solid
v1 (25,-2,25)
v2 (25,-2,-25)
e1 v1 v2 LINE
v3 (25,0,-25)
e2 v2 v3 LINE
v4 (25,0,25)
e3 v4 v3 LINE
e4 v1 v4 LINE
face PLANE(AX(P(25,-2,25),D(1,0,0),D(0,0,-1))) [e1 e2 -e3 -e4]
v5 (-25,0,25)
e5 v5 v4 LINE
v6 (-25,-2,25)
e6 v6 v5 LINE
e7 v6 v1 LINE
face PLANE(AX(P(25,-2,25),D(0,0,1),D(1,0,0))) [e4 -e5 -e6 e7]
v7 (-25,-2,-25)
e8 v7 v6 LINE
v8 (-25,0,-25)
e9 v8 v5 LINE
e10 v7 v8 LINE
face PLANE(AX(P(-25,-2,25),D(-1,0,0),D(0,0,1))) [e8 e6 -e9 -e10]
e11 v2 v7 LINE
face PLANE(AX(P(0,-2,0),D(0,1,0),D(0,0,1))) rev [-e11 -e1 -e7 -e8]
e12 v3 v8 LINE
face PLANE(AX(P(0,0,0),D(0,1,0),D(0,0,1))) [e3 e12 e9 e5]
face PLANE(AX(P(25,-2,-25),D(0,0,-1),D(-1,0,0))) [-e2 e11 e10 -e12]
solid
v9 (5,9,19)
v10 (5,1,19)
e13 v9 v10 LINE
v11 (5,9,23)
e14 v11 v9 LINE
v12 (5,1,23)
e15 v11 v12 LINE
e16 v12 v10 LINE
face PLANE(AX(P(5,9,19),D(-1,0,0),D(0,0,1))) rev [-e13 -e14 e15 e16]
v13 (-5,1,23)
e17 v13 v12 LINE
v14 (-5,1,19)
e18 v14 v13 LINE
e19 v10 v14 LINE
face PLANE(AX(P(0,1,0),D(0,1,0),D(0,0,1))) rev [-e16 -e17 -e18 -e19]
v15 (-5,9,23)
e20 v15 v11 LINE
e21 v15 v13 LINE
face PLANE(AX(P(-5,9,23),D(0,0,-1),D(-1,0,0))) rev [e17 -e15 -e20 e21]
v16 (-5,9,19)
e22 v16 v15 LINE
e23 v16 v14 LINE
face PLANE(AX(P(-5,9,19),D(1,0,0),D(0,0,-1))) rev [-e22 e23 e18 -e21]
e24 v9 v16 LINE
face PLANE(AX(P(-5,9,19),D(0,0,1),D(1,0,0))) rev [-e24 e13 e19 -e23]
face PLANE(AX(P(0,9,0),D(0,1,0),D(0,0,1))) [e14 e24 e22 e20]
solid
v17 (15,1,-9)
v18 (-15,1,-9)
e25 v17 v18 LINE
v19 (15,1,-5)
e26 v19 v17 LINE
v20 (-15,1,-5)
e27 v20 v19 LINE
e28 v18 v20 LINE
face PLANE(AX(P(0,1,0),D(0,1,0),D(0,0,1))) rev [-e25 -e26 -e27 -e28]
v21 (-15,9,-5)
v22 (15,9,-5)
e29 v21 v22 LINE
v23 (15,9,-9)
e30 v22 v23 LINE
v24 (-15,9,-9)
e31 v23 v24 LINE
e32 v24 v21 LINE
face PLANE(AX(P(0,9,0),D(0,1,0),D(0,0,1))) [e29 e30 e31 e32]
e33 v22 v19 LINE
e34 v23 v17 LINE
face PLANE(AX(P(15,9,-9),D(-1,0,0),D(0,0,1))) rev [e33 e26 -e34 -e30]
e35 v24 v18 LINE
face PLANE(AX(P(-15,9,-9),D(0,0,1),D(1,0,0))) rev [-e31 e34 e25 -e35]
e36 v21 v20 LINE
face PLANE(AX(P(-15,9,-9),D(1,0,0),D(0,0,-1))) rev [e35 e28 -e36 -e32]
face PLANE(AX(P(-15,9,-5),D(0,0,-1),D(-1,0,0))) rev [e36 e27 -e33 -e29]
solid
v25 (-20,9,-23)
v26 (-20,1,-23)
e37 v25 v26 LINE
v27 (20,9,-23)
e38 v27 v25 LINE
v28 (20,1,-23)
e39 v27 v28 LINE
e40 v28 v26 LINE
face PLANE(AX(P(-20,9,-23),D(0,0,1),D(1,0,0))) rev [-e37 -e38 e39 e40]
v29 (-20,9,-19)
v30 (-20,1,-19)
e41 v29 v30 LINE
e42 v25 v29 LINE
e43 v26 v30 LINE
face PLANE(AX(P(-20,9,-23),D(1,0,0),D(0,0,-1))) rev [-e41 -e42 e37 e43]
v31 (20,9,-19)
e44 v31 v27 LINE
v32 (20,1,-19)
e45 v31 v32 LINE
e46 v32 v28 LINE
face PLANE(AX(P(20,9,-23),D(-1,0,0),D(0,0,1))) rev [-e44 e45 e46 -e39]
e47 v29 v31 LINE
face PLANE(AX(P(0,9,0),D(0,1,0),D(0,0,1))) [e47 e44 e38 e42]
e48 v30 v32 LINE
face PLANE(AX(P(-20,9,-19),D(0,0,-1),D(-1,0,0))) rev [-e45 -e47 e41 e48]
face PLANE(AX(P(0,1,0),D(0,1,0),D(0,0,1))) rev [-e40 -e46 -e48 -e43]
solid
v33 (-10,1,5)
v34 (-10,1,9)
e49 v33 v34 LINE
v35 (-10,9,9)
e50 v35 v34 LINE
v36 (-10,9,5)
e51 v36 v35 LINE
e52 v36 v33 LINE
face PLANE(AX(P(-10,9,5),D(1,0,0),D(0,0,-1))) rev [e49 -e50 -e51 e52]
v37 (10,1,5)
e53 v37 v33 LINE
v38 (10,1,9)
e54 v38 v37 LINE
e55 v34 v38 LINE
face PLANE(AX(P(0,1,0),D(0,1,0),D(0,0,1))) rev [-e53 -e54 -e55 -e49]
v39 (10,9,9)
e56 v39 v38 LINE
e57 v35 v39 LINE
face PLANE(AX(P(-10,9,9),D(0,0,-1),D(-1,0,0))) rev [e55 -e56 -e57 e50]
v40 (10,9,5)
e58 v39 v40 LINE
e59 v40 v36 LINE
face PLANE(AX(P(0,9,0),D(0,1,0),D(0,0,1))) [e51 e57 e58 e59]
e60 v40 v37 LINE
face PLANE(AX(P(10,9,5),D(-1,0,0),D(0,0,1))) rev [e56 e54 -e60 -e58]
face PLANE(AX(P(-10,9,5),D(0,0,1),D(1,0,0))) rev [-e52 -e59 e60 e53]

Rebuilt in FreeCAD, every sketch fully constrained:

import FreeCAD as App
import Part
import Sketcher

V = App.Vector


def add_polygon(sketch, points):
    """Adds a closed chain of lines whose ends are joined by coincident constraints."""
    first, n = sketch.GeometryCount, len(points)
    for a, b in zip(points, points[1:] + points[:1]):
        sketch.addGeometry(Part.LineSegment(App.Vector(*a, 0), App.Vector(*b, 0)), False)
    for i in range(n):
        sketch.addConstraint(Sketcher.Constraint("Coincident", first + i, 2, first + (i + 1) % n, 1))

doc = App.newDocument("Part")
body = doc.addObject("PartDesign::Body", "Body")

# Sketch on XZ plane
sketch1 = body.newObject("Sketcher::SketchObject", "Sketch")
sketch1.AttachmentSupport = (doc.getObject("XZ_Plane"), [""])
sketch1.MapMode = "FlatFace"
sketch1.AttachmentOffset = App.Placement(V(0, 0, -1), App.Rotation())
add_polygon(sketch1, [(-5, 19), (-5, 23), (5, 23), (5, 19)])  # lines 0-3
sketch1.addConstraint([
    Sketcher.Constraint("Vertical", 0),
    Sketcher.Constraint("Horizontal", 1),
    Sketcher.Constraint("Vertical", 2),
    Sketcher.Constraint("Horizontal", 3),
    Sketcher.Constraint("DistanceX", 1, 1, 1, 2, 10.0),
    Sketcher.Constraint("DistanceY", 0, 1, 0, 2, 4.0),
    Sketcher.Constraint("DistanceX", 0, 2, -1, 1, 5.0),
    Sketcher.Constraint("DistanceY", -1, 1, 0, 2, 23.0),
])
pad1 = body.newObject("PartDesign::Pad", "Pad")
pad1.Profile = sketch1
pad1.Length = 8
pad1.Reversed = True
body2 = doc.addObject("PartDesign::Body", "Body001")

# Sketch on XZ plane
sketch2 = body2.newObject("Sketcher::SketchObject", "Sketch001")
sketch2.AttachmentSupport = (doc.getObject("XZ_Plane001"), [""])
sketch2.MapMode = "FlatFace"
sketch2.AttachmentOffset = App.Placement(V(0, 0, -1), App.Rotation())
add_polygon(sketch2, [(-10, 5), (-10, 9), (10, 9), (10, 5)])  # lines 0-3
sketch2.addConstraint([
    Sketcher.Constraint("Vertical", 0),
    Sketcher.Constraint("Horizontal", 1),
    Sketcher.Constraint("Vertical", 2),
    Sketcher.Constraint("Horizontal", 3),
    Sketcher.Constraint("DistanceX", 1, 1, 1, 2, 20.0),
    Sketcher.Constraint("DistanceY", 0, 1, 0, 2, 4.0),
    Sketcher.Constraint("DistanceX", 0, 2, -1, 1, 10.0),
    Sketcher.Constraint("DistanceY", -1, 1, 0, 2, 9.0),
])
pad2 = body2.newObject("PartDesign::Pad", "Pad001")
pad2.Profile = sketch2
pad2.Length = 8
pad2.Reversed = True
body3 = doc.addObject("PartDesign::Body", "Body002")

# Sketch on XZ plane
sketch3 = body3.newObject("Sketcher::SketchObject", "Sketch002")
sketch3.AttachmentSupport = (doc.getObject("XZ_Plane002"), [""])
sketch3.MapMode = "FlatFace"
sketch3.AttachmentOffset = App.Placement(V(0, 0, -1), App.Rotation())
add_polygon(sketch3, [(-15, -9), (-15, -5), (15, -5), (15, -9)])  # lines 0-3
sketch3.addConstraint([
    Sketcher.Constraint("Vertical", 0),
    Sketcher.Constraint("Horizontal", 1),
    Sketcher.Constraint("Vertical", 2),
    Sketcher.Constraint("Horizontal", 3),
    Sketcher.Constraint("DistanceX", 1, 1, 1, 2, 30.0),
    Sketcher.Constraint("DistanceY", 0, 1, 0, 2, 4.0),
    Sketcher.Constraint("DistanceX", 0, 2, -1, 1, 15.0),
    Sketcher.Constraint("DistanceY", 0, 2, -1, 1, 5.0),
])
pad3 = body3.newObject("PartDesign::Pad", "Pad002")
pad3.Profile = sketch3
pad3.Length = 8
pad3.Reversed = True
body4 = doc.addObject("PartDesign::Body", "Body003")

# Sketch on XZ plane
sketch4 = body4.newObject("Sketcher::SketchObject", "Sketch003")
sketch4.AttachmentSupport = (doc.getObject("XZ_Plane003"), [""])
sketch4.MapMode = "FlatFace"
sketch4.AttachmentOffset = App.Placement(V(0, 0, -1), App.Rotation())
add_polygon(sketch4, [(-20, -23), (-20, -19), (20, -19), (20, -23)])  # lines 0-3
sketch4.addConstraint([
    Sketcher.Constraint("Vertical", 0),
    Sketcher.Constraint("Horizontal", 1),
    Sketcher.Constraint("Vertical", 2),
    Sketcher.Constraint("Horizontal", 3),
    Sketcher.Constraint("DistanceX", 1, 1, 1, 2, 40.0),
    Sketcher.Constraint("DistanceY", 0, 1, 0, 2, 4.0),
    Sketcher.Constraint("DistanceX", 0, 2, -1, 1, 20.0),
    Sketcher.Constraint("DistanceY", 0, 2, -1, 1, 19.0),
])
pad4 = body4.newObject("PartDesign::Pad", "Pad003")
pad4.Profile = sketch4
pad4.Length = 8
pad4.Reversed = True
body5 = doc.addObject("PartDesign::Body", "Body004")

# Sketch on XZ plane
sketch5 = body5.newObject("Sketcher::SketchObject", "Sketch004")
sketch5.AttachmentSupport = (doc.getObject("XZ_Plane004"), [""])
sketch5.MapMode = "FlatFace"
add_polygon(sketch5, [(-25, -25), (-25, 25), (25, 25), (25, -25)])  # lines 0-3
sketch5.addConstraint([
    Sketcher.Constraint("Vertical", 0),
    Sketcher.Constraint("Horizontal", 1),
    Sketcher.Constraint("Vertical", 2),
    Sketcher.Constraint("Horizontal", 3),
    Sketcher.Constraint("Symmetric", 0, 2, 2, 2, -1, 1),
    Sketcher.Constraint("Equal", 3, 0),
    Sketcher.Constraint("DistanceX", 1, 1, 1, 2, 50.0),
])
pad5 = body5.newObject("PartDesign::Pad", "Pad004")
pad5.Profile = sketch5
pad5.Length = 2

doc.recompute()
